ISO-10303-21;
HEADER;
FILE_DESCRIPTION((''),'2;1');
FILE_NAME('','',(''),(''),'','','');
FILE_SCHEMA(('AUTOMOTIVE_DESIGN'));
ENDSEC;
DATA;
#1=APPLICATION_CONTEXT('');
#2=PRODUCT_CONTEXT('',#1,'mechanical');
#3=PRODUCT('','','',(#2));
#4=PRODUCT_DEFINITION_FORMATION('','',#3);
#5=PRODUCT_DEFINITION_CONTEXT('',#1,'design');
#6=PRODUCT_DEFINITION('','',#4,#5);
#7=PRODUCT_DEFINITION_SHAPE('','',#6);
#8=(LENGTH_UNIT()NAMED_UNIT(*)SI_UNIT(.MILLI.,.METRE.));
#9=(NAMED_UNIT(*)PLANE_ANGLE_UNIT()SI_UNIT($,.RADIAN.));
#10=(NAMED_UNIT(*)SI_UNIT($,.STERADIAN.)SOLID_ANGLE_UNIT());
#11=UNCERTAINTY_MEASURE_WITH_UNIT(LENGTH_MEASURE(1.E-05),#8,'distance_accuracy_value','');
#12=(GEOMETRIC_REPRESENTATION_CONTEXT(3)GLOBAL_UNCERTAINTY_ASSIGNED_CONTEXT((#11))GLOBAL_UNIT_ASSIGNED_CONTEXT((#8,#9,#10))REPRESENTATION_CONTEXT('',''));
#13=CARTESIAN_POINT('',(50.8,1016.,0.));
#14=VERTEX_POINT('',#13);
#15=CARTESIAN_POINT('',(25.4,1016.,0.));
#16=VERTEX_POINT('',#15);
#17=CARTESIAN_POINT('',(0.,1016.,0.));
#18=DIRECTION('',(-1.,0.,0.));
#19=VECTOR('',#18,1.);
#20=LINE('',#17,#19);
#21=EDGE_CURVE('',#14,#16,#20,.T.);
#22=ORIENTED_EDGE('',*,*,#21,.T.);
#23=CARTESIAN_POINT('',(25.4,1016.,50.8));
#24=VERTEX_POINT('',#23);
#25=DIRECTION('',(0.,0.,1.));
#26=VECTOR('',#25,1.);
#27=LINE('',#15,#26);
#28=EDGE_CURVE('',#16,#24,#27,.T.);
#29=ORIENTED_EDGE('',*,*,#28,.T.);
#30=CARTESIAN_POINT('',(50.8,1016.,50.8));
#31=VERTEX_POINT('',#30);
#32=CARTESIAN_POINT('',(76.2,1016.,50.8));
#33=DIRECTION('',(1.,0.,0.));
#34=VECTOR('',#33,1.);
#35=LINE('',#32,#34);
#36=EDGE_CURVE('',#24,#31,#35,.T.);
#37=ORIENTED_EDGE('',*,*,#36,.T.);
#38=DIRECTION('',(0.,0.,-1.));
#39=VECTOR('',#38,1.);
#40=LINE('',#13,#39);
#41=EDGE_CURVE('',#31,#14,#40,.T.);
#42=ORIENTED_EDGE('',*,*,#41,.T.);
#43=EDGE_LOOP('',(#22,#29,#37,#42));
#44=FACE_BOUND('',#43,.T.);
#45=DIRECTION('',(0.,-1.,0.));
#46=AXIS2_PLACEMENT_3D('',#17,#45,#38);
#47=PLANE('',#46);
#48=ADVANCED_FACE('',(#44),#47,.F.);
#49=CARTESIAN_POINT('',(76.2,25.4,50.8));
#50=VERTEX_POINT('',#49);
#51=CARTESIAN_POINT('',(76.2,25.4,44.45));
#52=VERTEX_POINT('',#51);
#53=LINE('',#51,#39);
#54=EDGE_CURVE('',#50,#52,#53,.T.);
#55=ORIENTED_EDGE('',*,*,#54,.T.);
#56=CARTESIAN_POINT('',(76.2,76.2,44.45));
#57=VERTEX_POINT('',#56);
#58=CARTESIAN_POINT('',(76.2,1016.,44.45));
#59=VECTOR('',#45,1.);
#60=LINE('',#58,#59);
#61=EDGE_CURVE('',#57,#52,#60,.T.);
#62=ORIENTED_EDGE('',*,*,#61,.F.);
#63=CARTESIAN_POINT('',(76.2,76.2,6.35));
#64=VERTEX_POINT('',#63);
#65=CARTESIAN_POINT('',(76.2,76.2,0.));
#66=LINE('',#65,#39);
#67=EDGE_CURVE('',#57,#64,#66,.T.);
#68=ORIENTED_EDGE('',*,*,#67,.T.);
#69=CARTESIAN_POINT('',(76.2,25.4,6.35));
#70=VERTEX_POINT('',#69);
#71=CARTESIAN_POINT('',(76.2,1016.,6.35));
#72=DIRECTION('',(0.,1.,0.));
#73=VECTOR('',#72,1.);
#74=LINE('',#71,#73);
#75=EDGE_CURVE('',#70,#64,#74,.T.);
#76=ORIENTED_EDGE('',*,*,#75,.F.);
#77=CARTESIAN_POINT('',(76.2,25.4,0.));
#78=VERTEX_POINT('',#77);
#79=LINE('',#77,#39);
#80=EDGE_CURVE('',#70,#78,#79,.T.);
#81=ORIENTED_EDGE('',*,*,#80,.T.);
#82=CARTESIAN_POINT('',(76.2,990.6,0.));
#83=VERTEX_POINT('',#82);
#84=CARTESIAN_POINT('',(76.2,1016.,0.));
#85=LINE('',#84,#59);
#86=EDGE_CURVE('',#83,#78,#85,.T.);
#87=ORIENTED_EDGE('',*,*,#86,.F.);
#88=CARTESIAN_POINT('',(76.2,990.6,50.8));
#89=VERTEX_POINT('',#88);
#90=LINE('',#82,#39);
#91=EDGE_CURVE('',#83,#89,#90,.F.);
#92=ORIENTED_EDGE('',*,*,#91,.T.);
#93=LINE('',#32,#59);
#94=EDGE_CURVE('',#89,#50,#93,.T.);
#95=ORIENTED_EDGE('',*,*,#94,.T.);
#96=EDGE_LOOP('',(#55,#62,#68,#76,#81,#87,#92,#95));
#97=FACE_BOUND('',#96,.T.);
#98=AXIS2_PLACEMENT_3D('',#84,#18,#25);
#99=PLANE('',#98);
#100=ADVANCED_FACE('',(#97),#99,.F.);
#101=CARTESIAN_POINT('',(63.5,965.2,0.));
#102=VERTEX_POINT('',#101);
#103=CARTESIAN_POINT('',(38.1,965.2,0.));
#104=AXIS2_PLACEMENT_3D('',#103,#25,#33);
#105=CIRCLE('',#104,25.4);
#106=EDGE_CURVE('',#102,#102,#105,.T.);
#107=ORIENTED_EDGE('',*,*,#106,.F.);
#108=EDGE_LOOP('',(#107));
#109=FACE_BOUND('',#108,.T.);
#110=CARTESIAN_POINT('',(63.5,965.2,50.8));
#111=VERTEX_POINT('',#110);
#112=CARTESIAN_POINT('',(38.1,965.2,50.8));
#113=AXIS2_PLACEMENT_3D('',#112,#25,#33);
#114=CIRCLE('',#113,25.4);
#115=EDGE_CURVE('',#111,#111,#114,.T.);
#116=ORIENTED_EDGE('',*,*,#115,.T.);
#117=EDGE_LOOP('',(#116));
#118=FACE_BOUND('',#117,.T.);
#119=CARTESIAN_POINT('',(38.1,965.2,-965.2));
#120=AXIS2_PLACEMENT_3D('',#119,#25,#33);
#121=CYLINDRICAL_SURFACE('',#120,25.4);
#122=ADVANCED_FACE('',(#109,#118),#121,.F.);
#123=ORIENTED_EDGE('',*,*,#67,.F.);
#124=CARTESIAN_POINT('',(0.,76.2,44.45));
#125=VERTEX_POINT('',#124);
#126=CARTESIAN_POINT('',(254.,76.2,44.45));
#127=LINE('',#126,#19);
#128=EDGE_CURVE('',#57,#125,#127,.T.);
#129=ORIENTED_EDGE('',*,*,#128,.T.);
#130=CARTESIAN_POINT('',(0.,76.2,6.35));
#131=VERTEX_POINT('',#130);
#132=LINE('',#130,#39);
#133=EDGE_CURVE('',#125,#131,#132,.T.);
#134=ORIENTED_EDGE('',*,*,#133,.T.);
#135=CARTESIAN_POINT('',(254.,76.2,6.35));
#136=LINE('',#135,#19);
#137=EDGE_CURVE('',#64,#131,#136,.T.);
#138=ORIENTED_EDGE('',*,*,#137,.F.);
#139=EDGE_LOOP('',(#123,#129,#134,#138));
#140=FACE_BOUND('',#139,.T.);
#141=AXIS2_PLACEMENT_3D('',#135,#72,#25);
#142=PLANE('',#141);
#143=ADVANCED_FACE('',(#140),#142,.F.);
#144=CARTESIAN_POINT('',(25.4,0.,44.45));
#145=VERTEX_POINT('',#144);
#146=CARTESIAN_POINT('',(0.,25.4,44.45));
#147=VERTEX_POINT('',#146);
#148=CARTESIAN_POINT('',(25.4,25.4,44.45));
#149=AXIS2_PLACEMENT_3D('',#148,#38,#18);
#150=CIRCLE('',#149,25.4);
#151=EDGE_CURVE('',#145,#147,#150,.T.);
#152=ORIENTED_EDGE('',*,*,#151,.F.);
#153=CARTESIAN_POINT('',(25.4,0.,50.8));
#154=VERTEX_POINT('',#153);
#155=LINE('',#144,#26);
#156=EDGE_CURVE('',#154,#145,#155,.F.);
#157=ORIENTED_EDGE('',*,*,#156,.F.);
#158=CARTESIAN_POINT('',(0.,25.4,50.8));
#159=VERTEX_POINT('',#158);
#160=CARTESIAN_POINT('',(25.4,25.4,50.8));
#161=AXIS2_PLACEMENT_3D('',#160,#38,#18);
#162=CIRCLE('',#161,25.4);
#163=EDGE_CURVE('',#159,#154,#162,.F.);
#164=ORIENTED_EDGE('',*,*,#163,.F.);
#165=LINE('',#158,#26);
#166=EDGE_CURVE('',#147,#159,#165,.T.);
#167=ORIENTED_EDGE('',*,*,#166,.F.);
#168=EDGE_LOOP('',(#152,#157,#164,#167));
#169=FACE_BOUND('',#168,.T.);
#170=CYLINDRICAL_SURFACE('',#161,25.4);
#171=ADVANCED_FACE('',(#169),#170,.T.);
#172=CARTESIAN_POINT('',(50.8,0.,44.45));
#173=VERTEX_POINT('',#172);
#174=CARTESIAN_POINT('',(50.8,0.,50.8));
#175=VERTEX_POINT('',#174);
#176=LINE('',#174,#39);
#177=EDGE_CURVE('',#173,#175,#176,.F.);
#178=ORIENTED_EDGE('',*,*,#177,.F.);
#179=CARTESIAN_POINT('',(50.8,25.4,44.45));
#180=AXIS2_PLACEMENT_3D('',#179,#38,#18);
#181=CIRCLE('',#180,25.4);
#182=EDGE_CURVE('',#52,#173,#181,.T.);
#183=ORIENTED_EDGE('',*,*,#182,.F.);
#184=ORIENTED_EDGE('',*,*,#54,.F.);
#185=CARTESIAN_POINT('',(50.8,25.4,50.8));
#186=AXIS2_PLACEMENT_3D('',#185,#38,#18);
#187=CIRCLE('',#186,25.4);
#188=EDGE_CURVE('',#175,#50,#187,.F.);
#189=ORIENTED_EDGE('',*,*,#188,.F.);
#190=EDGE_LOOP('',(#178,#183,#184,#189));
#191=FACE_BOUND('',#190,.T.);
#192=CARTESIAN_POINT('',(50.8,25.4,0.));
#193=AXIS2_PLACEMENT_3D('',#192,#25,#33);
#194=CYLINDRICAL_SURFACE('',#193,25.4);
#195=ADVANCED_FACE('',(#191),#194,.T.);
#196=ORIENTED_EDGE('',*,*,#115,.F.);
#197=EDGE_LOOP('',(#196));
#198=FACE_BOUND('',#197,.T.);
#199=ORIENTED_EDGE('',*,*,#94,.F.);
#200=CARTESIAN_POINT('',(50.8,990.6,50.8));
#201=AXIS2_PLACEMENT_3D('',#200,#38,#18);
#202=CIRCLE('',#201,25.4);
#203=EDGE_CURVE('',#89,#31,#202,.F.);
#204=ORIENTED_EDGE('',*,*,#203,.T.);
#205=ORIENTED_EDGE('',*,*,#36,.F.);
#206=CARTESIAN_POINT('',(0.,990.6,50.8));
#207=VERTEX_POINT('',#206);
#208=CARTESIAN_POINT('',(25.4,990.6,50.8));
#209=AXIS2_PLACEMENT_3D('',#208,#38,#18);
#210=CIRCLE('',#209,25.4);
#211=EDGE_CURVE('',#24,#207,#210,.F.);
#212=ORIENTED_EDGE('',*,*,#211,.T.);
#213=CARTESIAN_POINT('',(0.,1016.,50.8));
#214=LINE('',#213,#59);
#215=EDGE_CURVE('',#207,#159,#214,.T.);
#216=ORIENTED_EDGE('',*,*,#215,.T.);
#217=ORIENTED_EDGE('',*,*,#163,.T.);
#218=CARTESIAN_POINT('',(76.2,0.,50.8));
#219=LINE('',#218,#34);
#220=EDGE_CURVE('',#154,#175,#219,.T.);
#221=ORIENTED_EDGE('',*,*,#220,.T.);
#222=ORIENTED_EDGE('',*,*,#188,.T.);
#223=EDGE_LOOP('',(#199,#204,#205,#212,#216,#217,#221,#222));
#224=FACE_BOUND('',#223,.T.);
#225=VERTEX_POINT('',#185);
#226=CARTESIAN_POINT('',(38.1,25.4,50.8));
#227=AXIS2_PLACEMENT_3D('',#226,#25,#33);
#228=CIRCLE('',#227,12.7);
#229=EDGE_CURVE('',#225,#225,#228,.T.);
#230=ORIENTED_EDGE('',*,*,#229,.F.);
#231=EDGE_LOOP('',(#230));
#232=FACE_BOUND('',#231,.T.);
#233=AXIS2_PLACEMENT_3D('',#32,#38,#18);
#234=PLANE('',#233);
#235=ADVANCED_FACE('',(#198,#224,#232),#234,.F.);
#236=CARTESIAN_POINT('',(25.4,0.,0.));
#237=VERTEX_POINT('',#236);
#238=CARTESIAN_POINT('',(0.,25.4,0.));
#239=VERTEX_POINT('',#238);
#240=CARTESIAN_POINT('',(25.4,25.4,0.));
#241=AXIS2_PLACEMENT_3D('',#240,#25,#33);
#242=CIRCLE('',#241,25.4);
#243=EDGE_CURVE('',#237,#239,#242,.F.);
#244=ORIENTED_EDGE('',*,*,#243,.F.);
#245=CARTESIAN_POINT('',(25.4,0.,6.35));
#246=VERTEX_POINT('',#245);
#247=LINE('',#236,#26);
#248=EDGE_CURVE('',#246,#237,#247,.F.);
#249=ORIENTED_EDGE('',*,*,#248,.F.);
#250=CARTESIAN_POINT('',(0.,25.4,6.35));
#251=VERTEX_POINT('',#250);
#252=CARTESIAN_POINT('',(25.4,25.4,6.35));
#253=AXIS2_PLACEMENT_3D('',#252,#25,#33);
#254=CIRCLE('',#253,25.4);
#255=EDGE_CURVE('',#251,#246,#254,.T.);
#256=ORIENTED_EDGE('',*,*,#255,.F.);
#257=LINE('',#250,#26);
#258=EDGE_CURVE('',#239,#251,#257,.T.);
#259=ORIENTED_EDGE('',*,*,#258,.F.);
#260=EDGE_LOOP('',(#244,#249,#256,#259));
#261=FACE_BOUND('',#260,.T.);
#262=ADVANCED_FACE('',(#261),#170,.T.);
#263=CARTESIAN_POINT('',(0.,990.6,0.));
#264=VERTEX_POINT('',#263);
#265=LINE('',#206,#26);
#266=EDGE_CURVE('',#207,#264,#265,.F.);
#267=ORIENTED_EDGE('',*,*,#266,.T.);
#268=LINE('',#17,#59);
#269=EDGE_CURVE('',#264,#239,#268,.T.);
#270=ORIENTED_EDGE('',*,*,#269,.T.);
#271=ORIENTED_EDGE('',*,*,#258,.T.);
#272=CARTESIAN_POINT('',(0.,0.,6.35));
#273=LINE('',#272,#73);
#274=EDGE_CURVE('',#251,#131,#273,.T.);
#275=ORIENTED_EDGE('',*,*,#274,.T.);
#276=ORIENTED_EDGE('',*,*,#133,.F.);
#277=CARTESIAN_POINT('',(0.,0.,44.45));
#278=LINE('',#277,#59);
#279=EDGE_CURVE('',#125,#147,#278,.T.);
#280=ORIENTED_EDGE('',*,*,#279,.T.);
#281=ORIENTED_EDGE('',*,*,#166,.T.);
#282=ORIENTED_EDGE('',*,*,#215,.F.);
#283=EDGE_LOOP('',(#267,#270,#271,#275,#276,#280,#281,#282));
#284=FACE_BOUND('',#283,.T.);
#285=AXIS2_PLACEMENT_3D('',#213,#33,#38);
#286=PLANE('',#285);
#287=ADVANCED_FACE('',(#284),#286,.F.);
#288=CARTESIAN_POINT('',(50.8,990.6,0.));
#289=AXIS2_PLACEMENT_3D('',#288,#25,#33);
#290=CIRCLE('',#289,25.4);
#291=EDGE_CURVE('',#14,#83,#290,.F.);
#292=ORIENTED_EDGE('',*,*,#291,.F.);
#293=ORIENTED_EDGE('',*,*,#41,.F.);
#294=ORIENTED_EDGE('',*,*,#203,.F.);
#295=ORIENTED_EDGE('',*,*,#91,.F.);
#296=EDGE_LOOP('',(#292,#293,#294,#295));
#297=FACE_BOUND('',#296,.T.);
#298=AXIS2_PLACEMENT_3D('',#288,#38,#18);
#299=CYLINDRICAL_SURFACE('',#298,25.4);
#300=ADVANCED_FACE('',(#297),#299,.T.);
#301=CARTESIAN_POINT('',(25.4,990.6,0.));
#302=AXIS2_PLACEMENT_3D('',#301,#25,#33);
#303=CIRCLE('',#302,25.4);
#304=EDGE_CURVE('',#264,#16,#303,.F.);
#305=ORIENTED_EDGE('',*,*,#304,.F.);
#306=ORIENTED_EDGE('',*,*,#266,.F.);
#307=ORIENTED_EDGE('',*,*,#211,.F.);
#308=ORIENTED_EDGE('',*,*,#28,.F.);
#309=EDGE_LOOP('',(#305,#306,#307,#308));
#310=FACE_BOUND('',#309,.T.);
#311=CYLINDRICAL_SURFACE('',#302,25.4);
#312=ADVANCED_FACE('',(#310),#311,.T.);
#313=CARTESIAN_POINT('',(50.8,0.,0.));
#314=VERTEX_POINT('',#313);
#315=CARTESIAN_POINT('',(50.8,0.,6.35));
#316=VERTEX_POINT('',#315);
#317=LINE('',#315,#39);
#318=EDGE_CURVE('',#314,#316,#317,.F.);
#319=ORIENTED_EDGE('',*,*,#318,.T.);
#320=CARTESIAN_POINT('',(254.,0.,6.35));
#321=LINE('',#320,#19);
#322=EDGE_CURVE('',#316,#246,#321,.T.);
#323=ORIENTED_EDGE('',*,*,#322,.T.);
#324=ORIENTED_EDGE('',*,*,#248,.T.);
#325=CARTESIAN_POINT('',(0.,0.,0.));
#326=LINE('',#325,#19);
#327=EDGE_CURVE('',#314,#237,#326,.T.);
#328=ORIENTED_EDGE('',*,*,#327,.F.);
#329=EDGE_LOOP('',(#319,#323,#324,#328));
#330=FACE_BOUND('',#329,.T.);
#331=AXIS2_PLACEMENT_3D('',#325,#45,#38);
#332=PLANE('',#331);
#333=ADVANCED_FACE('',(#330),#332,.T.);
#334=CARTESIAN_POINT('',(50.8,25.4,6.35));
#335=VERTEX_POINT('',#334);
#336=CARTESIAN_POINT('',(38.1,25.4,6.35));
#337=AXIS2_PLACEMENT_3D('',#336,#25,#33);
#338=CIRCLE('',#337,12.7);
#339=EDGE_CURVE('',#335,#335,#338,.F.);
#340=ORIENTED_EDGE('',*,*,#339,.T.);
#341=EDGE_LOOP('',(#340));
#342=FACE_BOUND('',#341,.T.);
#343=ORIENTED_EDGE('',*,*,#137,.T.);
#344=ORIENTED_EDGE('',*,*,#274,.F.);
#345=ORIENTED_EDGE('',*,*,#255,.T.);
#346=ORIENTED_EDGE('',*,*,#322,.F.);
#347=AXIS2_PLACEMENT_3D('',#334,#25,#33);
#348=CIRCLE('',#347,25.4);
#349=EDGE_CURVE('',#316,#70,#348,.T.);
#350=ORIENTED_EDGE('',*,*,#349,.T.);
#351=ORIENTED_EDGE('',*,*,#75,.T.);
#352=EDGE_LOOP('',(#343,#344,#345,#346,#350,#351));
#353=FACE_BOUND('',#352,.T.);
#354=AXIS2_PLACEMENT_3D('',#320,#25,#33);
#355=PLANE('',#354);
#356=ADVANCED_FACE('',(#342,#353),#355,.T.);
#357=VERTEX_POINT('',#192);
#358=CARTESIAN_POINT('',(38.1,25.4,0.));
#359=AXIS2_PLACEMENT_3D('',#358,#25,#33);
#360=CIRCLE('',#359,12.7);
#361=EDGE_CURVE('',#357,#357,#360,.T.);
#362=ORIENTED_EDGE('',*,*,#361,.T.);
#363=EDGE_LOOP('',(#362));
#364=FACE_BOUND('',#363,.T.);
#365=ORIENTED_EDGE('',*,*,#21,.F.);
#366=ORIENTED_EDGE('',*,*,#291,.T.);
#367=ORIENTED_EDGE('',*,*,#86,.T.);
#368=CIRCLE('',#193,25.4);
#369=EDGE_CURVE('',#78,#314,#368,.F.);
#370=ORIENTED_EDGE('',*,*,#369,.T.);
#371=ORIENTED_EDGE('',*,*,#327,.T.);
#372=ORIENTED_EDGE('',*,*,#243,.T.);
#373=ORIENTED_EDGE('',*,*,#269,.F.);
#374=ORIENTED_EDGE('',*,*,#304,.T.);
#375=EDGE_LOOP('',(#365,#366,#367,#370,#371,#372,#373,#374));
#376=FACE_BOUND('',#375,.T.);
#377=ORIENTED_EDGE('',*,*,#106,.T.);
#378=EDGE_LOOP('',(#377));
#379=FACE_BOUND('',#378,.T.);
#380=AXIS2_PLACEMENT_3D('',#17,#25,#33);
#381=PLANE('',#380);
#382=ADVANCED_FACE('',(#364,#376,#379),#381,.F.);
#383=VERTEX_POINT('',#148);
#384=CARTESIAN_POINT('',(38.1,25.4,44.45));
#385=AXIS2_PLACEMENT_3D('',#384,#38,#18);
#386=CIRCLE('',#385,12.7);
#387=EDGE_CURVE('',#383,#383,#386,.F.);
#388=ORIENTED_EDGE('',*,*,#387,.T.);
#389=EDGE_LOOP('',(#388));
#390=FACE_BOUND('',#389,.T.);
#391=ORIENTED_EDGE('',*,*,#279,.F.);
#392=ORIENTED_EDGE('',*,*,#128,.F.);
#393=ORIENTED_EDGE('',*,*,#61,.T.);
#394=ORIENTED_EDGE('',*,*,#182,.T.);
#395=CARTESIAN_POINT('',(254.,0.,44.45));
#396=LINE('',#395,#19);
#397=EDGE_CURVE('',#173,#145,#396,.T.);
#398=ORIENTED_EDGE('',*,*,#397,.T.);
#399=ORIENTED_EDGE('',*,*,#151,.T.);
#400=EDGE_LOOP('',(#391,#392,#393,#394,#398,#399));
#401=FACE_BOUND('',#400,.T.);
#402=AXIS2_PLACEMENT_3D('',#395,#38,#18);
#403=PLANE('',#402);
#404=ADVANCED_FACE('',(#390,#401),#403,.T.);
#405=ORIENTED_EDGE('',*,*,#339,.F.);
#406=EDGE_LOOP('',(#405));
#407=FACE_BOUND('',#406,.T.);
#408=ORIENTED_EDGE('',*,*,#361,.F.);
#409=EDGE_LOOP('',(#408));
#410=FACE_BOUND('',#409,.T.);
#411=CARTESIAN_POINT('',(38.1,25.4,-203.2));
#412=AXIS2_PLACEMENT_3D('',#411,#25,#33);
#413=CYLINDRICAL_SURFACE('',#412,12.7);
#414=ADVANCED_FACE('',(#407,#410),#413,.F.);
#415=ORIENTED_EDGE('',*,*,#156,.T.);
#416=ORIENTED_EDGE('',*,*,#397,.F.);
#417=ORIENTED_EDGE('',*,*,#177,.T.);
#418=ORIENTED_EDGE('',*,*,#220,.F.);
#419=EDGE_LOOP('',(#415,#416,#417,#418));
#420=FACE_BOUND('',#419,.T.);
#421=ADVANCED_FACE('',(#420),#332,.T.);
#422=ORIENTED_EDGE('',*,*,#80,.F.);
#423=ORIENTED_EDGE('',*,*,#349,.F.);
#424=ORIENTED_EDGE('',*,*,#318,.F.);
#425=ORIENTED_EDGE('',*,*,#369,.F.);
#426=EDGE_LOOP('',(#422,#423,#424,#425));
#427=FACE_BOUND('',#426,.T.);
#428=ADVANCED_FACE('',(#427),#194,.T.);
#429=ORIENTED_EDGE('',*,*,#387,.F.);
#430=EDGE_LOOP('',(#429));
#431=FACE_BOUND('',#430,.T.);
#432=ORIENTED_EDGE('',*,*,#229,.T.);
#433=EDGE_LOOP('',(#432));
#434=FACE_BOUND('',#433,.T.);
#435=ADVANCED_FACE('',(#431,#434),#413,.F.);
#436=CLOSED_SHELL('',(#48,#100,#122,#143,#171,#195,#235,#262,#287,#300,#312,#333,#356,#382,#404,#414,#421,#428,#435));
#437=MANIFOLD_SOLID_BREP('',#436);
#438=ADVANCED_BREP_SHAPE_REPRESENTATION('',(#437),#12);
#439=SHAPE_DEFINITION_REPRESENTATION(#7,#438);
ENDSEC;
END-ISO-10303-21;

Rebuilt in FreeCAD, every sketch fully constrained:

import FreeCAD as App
import Part
import Sketcher

V = App.Vector
Q = App.Units.Quantity


def edges_at(feature, points):
    """Names of the edges that pass closest to the given points."""
    edges = feature.Shape.Edges
    near = lambda p: min(range(len(edges)), key=lambda i: edges[i].distToShape(Part.Vertex(*p))[0])
    return sorted({f"Edge{near(p) + 1}" for p in points})

doc = App.newDocument("Part")
body = doc.addObject("PartDesign::Body", "Body")

# Sketch on XZ plane
sketch1 = body.newObject("Sketcher::SketchObject", "Sketch")
sketch1.AttachmentSupport = (doc.getObject("XZ_Plane"), [""])
sketch1.MapMode = "FlatFace"
sketch1.addGeometry(Part.LineSegment(V(0, 0, 0), V(0, 51, 0)), False)
sketch1.addGeometry(Part.LineSegment(V(0, 51, 0), V(76, 51, 0)), False)
sketch1.addGeometry(Part.LineSegment(V(76, 51, 0), V(76, 0, 0)), False)
sketch1.addGeometry(Part.LineSegment(V(76, 0, 0), V(0, 0, 0)), False)
sketch1.addConstraint(Sketcher.Constraint("Coincident", 0, 2, 1, 1))
sketch1.addConstraint(Sketcher.Constraint("Coincident", 1, 2, 2, 1))
sketch1.addConstraint(Sketcher.Constraint("Coincident", 2, 2, 3, 1))
sketch1.addConstraint(Sketcher.Constraint("Coincident", 3, 2, 0, 1))
sketch1.addConstraint(Sketcher.Constraint("Vertical", 0))
sketch1.addConstraint(Sketcher.Constraint("Horizontal", 1))
sketch1.addConstraint(Sketcher.Constraint("Vertical", 2))
sketch1.addConstraint(Sketcher.Constraint("Horizontal", 3))
sketch1.addConstraint(Sketcher.Constraint("Coincident", 3, 2, -1, 1))
sketch1.addConstraint(Sketcher.Constraint("DistanceX", 1, 1, 1, 2, Q("3 in")))
sketch1.addConstraint(Sketcher.Constraint("DistanceY", 0, 1, 0, 2, Q("2 in")))
pad1 = body.newObject("PartDesign::Pad", "Pad")
pad1.Profile = sketch1
pad1.Length = Q("40 in")
pad1.Reversed = True

# Sketch on XY plane
sketch2 = body.newObject("Sketcher::SketchObject", "Sketch001")
sketch2.AttachmentSupport = (doc.getObject("XY_Plane"), [""])
sketch2.MapMode = "FlatFace"
sketch2.AttachmentOffset = App.Placement(V(0, 0, 2 * 25.4), App.Rotation())
sketch2.addGeometry(Part.Circle(V(38, 965, 0), V(0, 0, 1), 25), False)
sketch2.addConstraint(Sketcher.Constraint("Diameter", 0, Q("2 in")))
sketch2.addConstraint(Sketcher.Constraint("DistanceY", -1, 1, 0, 3, Q("38 in")))
sketch2.addConstraint(Sketcher.Constraint("DistanceX", -1, 1, 0, 3, Q("1.5 in")))
pocket1 = body.newObject("PartDesign::Pocket", "Pocket")
pocket1.Profile = sketch2
pocket1.Length = Q("40 in")
doc.recompute()

fillet = body.newObject("PartDesign::Fillet", "Fillet")
fillet.Base = (pocket1, edges_at(pocket1, [(76.2, 1016, 25.4), (0, 1016, 25.4)]))
fillet.Radius = Q("1 in")

# Sketch on XY plane
sketch3 = body.newObject("Sketcher::SketchObject", "Sketch002")
sketch3.AttachmentSupport = (doc.getObject("XY_Plane"), [""])
sketch3.MapMode = "FlatFace"
sketch3.AttachmentOffset = App.Placement(V(0, 0, 2 * 25.4), App.Rotation())
sketch3.addGeometry(Part.Circle(V(38, 25, 0), V(0, 0, 1), 13), False)
sketch3.addConstraint(Sketcher.Constraint("Diameter", 0, Q("1 in")))
sketch3.addConstraint(Sketcher.Constraint("DistanceY", -1, 1, 0, 3, Q("1 in")))
sketch3.addConstraint(Sketcher.Constraint("DistanceX", -1, 1, 0, 3, Q("1.5 in")))
pocket2 = body.newObject("PartDesign::Pocket", "Pocket001")
pocket2.Profile = sketch3
pocket2.Length = Q("10 in")

# Sketch on YZ plane
sketch4 = body.newObject("Sketcher::SketchObject", "Sketch003")
sketch4.AttachmentSupport = (doc.getObject("YZ_Plane"), [""])
sketch4.MapMode = "FlatFace"
sketch4.addGeometry(Part.LineSegment(V(51, 6, 0), V(0, 6, 0)), False)
sketch4.addGeometry(Part.LineSegment(V(0, 6, 0), V(0, 44, 0)), False)
sketch4.addGeometry(Part.LineSegment(V(0, 44, 0), V(51, 44, 0)), False)
sketch4.addGeometry(Part.LineSegment(V(51, 44, 0), V(51, 6, 0)), False)
sketch4.addConstraint(Sketcher.Constraint("Coincident", 0, 2, 1, 1))
sketch4.addConstraint(Sketcher.Constraint("Coincident", 1, 2, 2, 1))
sketch4.addConstraint(Sketcher.Constraint("Coincident", 2, 2, 3, 1))
sketch4.addConstraint(Sketcher.Constraint("Coincident", 3, 2, 0, 1))
sketch4.addConstraint(Sketcher.Constraint("Horizontal", 0))
sketch4.addConstraint(Sketcher.Constraint("Vertical", 1))
sketch4.addConstraint(Sketcher.Constraint("Horizontal", 2))
sketch4.addConstraint(Sketcher.Constraint("Vertical", 3))
sketch4.addConstraint(Sketcher.Constraint("PointOnObject", 0, 2, -2))
sketch4.addConstraint(Sketcher.Constraint("DistanceX", 0, 2, 0, 1, Q("2 in")))
sketch4.addConstraint(Sketcher.Constraint("DistanceY", 1, 1, 1, 2, Q("1.5 in")))
sketch4.addConstraint(Sketcher.Constraint("DistanceY", -1, 1, 0, 2, Q("0.25 in")))
pocket3 = body.newObject("PartDesign::Pocket", "Pocket002")
pocket3.Profile = sketch4
pocket3.Length = Q("10 in")
pocket3.Reversed = True

# Sketch on YZ plane
sketch5 = body.newObject("Sketcher::SketchObject", "Sketch004")
sketch5.AttachmentSupport = (doc.getObject("YZ_Plane"), [""])
sketch5.MapMode = "FlatFace"
sketch5.addGeometry(Part.LineSegment(V(76, 6, 0), V(51, 6, 0)), False)
sketch5.addGeometry(Part.LineSegment(V(51, 6, 0), V(51, 44, 0)), False)
sketch5.addGeometry(Part.LineSegment(V(51, 44, 0), V(76, 44, 0)), False)
sketch5.addGeometry(Part.LineSegment(V(76, 44, 0), V(76, 6, 0)), False)
sketch5.addConstraint(Sketcher.Constraint("Coincident", 0, 2, 1, 1))
sketch5.addConstraint(Sketcher.Constraint("Coincident", 1, 2, 2, 1))
sketch5.addConstraint(Sketcher.Constraint("Coincident", 2, 2, 3, 1))
sketch5.addConstraint(Sketcher.Constraint("Coincident", 3, 2, 0, 1))
sketch5.addConstraint(Sketcher.Constraint("Horizontal", 0))
sketch5.addConstraint(Sketcher.Constraint("Vertical", 1))
sketch5.addConstraint(Sketcher.Constraint("Horizontal", 2))
sketch5.addConstraint(Sketcher.Constraint("Vertical", 3))
sketch5.addConstraint(Sketcher.Constraint("DistanceX", 0, 2, 0, 1, Q("1 in")))
sketch5.addConstraint(Sketcher.Constraint("DistanceY", 1, 1, 1, 2, Q("1.5 in")))
sketch5.addConstraint(Sketcher.Constraint("DistanceX", -1, 1, 0, 2, Q("2 in")))
sketch5.addConstraint(Sketcher.Constraint("DistanceY", -1, 1, 0, 2, Q("0.25 in")))
pocket4 = body.newObject("PartDesign::Pocket", "Pocket003")
pocket4.Profile = sketch5
pocket4.Length = Q("10 in")
pocket4.Reversed = True
doc.recompute()

fillet2 = body.newObject("PartDesign::Fillet", "Fillet001")
fillet2.Base = (pocket4, edges_at(pocket4, [
    (0, 0, 47.625),
    (76.2, 0, 3.175),
    (76.2, 0, 47.625),
    (0, 0, 3.175),
]))
fillet2.Radius = Q("1 in")

doc.recompute()
